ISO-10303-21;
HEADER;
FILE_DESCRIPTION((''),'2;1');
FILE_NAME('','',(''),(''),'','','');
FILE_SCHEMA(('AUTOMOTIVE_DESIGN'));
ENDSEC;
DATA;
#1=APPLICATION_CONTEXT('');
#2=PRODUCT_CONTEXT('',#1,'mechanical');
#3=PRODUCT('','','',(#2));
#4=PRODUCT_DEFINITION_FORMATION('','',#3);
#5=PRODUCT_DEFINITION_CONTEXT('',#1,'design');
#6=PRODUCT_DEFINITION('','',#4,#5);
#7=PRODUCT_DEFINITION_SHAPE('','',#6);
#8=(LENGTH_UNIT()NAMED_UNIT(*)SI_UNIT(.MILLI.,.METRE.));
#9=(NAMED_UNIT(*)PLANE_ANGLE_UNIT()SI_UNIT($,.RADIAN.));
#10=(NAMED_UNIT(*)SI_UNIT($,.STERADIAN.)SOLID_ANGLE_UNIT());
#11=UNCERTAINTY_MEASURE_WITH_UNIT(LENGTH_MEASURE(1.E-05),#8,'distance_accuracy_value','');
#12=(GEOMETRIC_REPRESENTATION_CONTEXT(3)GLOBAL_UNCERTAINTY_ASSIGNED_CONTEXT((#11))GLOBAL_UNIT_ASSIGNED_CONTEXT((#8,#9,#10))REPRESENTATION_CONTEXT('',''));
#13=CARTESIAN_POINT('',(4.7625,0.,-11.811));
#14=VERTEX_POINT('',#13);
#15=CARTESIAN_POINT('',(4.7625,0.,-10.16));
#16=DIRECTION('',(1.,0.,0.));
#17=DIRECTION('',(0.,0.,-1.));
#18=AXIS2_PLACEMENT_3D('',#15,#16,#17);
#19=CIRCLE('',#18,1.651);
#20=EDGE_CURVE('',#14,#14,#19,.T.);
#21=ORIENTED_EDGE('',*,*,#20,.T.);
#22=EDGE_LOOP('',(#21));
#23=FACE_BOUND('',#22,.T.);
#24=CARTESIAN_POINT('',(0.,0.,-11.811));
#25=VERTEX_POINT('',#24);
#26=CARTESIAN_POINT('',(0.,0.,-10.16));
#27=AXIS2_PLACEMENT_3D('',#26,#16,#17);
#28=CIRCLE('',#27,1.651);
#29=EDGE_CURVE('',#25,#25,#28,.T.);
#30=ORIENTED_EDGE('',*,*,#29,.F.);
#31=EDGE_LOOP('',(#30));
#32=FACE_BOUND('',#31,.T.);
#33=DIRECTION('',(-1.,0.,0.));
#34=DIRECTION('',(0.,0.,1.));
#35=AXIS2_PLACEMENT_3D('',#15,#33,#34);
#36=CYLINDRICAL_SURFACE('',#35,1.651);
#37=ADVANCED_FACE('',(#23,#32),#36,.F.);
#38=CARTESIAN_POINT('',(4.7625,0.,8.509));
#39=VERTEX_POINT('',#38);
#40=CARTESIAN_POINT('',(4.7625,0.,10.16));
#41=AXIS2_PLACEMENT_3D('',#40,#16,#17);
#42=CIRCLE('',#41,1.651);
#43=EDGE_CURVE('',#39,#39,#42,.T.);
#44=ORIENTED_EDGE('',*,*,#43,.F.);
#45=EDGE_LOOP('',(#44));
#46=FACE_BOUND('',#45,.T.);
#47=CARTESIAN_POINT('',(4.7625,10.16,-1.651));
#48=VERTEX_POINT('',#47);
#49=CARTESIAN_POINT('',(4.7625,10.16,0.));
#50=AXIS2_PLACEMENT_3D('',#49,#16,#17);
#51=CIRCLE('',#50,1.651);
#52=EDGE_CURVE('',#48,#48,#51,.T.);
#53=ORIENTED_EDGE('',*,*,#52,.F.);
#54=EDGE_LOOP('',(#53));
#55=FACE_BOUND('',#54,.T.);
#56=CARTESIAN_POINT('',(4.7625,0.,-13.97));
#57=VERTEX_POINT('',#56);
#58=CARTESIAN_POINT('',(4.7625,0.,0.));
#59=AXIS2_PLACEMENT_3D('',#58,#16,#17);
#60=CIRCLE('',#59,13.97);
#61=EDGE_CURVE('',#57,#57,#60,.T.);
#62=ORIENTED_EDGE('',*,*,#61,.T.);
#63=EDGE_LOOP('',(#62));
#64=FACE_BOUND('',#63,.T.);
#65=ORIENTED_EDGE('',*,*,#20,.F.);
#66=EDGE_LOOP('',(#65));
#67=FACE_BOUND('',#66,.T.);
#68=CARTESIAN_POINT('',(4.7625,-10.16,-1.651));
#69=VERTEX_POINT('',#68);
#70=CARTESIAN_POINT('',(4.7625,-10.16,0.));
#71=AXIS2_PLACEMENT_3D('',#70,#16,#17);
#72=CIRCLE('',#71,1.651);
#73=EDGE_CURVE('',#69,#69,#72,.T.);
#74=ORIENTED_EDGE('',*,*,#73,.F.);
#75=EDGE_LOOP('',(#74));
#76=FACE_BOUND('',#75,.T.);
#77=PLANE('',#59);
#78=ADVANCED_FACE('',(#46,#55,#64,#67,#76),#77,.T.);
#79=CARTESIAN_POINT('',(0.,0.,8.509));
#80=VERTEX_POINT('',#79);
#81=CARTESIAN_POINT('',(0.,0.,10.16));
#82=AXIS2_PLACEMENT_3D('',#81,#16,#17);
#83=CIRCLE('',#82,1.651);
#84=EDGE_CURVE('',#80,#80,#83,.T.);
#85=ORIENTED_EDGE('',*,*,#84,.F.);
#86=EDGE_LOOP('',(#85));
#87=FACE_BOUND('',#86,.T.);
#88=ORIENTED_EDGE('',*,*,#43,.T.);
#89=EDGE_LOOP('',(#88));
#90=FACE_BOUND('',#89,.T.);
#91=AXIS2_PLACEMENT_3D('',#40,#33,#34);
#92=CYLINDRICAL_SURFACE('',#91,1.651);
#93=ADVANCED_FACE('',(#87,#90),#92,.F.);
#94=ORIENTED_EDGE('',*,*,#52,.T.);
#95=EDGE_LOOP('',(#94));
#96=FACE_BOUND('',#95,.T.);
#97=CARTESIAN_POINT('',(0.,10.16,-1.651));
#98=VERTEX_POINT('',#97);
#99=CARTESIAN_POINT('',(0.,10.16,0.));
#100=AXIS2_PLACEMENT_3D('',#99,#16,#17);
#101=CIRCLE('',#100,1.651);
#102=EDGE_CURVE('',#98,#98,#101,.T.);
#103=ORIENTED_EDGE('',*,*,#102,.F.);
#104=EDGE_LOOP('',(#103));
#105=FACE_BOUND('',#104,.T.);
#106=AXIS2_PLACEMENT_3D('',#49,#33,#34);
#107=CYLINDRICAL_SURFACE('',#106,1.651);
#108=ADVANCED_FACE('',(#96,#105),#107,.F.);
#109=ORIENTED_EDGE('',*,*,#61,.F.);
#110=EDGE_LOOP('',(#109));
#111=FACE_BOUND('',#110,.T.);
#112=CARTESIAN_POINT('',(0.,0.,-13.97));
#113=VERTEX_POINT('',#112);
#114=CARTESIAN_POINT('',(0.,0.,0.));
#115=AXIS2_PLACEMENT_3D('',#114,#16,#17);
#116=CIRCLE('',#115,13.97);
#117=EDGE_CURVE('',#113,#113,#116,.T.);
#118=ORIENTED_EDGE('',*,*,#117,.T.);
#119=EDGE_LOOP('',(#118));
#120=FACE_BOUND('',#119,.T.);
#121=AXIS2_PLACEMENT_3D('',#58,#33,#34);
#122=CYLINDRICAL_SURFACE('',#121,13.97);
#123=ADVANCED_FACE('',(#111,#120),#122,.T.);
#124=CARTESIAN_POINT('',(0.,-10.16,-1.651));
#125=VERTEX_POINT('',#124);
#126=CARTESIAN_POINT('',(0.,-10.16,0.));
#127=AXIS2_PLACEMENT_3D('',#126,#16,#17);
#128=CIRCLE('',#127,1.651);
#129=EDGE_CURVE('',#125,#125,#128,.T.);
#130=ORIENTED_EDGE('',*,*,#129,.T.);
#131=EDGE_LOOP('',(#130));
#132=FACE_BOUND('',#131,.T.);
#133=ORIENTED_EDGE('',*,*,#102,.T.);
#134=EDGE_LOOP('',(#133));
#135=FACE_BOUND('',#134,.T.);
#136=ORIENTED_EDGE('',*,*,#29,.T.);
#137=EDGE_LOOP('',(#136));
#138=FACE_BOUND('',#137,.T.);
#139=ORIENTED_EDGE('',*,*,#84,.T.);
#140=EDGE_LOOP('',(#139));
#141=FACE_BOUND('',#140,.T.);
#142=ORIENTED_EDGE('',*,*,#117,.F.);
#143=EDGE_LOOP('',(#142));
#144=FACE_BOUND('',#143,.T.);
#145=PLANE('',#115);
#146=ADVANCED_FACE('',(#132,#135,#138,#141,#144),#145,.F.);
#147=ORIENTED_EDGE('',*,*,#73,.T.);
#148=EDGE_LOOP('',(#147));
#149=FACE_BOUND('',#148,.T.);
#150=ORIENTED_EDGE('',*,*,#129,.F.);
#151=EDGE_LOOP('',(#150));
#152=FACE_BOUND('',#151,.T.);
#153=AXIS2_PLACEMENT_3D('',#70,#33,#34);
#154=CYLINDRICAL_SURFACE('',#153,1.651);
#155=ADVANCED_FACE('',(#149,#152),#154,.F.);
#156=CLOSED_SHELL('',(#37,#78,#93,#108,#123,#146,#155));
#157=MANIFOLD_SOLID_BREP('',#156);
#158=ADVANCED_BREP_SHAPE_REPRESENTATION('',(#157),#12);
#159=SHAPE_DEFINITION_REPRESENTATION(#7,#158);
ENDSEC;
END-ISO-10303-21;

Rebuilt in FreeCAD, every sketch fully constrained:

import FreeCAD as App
import Part
import Sketcher
from FreeCAD import Vector
Q = App.Units.Quantity

doc = App.newDocument("Part")
body = doc.addObject("PartDesign::Body", "Body")

sketch1 = body.newObject("Sketcher::SketchObject", "Sketch")
sketch1.AttachmentSupport = (doc.getObject("YZ_Plane"), [""])
sketch1.MapMode = "FlatFace"
sketch1.addGeometry(Part.Circle(Vector(0, 0, 0), Vector(0, 0, 1), 14), False)
sketch1.addGeometry(Part.Circle(Vector(-10.2, 0, 0), Vector(0, 0, 1), 1.7), False)
sketch1.addGeometry(Part.Circle(Vector(0, 10.2, 0), Vector(0, 0, 1), 1.7), False)
sketch1.addGeometry(Part.Circle(Vector(0, -10.2, 0), Vector(0, 0, 1), 1.7), False)
sketch1.addGeometry(Part.Circle(Vector(10.2, 0, 0), Vector(0, 0, 1), 1.7), False)
sketch1.addConstraint(Sketcher.Constraint("Coincident", 0, 3, -1, 1))
sketch1.addConstraint(Sketcher.Constraint("Equal", 1, 2))
sketch1.addConstraint(Sketcher.Constraint("Equal", 2, 3))
sketch1.addConstraint(Sketcher.Constraint("Equal", 3, 4))
sketch1.addConstraint(Sketcher.Constraint("Symmetric", 2, 3, 3, 3, -1, 1))
sketch1.addConstraint(Sketcher.Constraint("Symmetric", 1, 3, 4, 3, -1, 1))
sketch1.addConstraint(Sketcher.Constraint("PointOnObject", 1, 3, -1))
sketch1.addConstraint(Sketcher.Constraint("PointOnObject", 2, 3, -2))
sketch1.addConstraint(Sketcher.Constraint("Diameter", 0, Q("1.1 in")))
sketch1.addConstraint(Sketcher.Constraint("Diameter", 1, Q("0.13 in")))
sketch1.addConstraint(Sketcher.Constraint("DistanceX", 1, 3, -1, 1, Q("0.4 in")))
sketch1.addConstraint(Sketcher.Constraint("DistanceY", -1, 1, 2, 3, Q("0.4 in")))
pad1 = body.newObject("PartDesign::Pad", "Pad")
pad1.Profile = sketch1
pad1.Length = Q("0.1875 in")

doc.recompute()
